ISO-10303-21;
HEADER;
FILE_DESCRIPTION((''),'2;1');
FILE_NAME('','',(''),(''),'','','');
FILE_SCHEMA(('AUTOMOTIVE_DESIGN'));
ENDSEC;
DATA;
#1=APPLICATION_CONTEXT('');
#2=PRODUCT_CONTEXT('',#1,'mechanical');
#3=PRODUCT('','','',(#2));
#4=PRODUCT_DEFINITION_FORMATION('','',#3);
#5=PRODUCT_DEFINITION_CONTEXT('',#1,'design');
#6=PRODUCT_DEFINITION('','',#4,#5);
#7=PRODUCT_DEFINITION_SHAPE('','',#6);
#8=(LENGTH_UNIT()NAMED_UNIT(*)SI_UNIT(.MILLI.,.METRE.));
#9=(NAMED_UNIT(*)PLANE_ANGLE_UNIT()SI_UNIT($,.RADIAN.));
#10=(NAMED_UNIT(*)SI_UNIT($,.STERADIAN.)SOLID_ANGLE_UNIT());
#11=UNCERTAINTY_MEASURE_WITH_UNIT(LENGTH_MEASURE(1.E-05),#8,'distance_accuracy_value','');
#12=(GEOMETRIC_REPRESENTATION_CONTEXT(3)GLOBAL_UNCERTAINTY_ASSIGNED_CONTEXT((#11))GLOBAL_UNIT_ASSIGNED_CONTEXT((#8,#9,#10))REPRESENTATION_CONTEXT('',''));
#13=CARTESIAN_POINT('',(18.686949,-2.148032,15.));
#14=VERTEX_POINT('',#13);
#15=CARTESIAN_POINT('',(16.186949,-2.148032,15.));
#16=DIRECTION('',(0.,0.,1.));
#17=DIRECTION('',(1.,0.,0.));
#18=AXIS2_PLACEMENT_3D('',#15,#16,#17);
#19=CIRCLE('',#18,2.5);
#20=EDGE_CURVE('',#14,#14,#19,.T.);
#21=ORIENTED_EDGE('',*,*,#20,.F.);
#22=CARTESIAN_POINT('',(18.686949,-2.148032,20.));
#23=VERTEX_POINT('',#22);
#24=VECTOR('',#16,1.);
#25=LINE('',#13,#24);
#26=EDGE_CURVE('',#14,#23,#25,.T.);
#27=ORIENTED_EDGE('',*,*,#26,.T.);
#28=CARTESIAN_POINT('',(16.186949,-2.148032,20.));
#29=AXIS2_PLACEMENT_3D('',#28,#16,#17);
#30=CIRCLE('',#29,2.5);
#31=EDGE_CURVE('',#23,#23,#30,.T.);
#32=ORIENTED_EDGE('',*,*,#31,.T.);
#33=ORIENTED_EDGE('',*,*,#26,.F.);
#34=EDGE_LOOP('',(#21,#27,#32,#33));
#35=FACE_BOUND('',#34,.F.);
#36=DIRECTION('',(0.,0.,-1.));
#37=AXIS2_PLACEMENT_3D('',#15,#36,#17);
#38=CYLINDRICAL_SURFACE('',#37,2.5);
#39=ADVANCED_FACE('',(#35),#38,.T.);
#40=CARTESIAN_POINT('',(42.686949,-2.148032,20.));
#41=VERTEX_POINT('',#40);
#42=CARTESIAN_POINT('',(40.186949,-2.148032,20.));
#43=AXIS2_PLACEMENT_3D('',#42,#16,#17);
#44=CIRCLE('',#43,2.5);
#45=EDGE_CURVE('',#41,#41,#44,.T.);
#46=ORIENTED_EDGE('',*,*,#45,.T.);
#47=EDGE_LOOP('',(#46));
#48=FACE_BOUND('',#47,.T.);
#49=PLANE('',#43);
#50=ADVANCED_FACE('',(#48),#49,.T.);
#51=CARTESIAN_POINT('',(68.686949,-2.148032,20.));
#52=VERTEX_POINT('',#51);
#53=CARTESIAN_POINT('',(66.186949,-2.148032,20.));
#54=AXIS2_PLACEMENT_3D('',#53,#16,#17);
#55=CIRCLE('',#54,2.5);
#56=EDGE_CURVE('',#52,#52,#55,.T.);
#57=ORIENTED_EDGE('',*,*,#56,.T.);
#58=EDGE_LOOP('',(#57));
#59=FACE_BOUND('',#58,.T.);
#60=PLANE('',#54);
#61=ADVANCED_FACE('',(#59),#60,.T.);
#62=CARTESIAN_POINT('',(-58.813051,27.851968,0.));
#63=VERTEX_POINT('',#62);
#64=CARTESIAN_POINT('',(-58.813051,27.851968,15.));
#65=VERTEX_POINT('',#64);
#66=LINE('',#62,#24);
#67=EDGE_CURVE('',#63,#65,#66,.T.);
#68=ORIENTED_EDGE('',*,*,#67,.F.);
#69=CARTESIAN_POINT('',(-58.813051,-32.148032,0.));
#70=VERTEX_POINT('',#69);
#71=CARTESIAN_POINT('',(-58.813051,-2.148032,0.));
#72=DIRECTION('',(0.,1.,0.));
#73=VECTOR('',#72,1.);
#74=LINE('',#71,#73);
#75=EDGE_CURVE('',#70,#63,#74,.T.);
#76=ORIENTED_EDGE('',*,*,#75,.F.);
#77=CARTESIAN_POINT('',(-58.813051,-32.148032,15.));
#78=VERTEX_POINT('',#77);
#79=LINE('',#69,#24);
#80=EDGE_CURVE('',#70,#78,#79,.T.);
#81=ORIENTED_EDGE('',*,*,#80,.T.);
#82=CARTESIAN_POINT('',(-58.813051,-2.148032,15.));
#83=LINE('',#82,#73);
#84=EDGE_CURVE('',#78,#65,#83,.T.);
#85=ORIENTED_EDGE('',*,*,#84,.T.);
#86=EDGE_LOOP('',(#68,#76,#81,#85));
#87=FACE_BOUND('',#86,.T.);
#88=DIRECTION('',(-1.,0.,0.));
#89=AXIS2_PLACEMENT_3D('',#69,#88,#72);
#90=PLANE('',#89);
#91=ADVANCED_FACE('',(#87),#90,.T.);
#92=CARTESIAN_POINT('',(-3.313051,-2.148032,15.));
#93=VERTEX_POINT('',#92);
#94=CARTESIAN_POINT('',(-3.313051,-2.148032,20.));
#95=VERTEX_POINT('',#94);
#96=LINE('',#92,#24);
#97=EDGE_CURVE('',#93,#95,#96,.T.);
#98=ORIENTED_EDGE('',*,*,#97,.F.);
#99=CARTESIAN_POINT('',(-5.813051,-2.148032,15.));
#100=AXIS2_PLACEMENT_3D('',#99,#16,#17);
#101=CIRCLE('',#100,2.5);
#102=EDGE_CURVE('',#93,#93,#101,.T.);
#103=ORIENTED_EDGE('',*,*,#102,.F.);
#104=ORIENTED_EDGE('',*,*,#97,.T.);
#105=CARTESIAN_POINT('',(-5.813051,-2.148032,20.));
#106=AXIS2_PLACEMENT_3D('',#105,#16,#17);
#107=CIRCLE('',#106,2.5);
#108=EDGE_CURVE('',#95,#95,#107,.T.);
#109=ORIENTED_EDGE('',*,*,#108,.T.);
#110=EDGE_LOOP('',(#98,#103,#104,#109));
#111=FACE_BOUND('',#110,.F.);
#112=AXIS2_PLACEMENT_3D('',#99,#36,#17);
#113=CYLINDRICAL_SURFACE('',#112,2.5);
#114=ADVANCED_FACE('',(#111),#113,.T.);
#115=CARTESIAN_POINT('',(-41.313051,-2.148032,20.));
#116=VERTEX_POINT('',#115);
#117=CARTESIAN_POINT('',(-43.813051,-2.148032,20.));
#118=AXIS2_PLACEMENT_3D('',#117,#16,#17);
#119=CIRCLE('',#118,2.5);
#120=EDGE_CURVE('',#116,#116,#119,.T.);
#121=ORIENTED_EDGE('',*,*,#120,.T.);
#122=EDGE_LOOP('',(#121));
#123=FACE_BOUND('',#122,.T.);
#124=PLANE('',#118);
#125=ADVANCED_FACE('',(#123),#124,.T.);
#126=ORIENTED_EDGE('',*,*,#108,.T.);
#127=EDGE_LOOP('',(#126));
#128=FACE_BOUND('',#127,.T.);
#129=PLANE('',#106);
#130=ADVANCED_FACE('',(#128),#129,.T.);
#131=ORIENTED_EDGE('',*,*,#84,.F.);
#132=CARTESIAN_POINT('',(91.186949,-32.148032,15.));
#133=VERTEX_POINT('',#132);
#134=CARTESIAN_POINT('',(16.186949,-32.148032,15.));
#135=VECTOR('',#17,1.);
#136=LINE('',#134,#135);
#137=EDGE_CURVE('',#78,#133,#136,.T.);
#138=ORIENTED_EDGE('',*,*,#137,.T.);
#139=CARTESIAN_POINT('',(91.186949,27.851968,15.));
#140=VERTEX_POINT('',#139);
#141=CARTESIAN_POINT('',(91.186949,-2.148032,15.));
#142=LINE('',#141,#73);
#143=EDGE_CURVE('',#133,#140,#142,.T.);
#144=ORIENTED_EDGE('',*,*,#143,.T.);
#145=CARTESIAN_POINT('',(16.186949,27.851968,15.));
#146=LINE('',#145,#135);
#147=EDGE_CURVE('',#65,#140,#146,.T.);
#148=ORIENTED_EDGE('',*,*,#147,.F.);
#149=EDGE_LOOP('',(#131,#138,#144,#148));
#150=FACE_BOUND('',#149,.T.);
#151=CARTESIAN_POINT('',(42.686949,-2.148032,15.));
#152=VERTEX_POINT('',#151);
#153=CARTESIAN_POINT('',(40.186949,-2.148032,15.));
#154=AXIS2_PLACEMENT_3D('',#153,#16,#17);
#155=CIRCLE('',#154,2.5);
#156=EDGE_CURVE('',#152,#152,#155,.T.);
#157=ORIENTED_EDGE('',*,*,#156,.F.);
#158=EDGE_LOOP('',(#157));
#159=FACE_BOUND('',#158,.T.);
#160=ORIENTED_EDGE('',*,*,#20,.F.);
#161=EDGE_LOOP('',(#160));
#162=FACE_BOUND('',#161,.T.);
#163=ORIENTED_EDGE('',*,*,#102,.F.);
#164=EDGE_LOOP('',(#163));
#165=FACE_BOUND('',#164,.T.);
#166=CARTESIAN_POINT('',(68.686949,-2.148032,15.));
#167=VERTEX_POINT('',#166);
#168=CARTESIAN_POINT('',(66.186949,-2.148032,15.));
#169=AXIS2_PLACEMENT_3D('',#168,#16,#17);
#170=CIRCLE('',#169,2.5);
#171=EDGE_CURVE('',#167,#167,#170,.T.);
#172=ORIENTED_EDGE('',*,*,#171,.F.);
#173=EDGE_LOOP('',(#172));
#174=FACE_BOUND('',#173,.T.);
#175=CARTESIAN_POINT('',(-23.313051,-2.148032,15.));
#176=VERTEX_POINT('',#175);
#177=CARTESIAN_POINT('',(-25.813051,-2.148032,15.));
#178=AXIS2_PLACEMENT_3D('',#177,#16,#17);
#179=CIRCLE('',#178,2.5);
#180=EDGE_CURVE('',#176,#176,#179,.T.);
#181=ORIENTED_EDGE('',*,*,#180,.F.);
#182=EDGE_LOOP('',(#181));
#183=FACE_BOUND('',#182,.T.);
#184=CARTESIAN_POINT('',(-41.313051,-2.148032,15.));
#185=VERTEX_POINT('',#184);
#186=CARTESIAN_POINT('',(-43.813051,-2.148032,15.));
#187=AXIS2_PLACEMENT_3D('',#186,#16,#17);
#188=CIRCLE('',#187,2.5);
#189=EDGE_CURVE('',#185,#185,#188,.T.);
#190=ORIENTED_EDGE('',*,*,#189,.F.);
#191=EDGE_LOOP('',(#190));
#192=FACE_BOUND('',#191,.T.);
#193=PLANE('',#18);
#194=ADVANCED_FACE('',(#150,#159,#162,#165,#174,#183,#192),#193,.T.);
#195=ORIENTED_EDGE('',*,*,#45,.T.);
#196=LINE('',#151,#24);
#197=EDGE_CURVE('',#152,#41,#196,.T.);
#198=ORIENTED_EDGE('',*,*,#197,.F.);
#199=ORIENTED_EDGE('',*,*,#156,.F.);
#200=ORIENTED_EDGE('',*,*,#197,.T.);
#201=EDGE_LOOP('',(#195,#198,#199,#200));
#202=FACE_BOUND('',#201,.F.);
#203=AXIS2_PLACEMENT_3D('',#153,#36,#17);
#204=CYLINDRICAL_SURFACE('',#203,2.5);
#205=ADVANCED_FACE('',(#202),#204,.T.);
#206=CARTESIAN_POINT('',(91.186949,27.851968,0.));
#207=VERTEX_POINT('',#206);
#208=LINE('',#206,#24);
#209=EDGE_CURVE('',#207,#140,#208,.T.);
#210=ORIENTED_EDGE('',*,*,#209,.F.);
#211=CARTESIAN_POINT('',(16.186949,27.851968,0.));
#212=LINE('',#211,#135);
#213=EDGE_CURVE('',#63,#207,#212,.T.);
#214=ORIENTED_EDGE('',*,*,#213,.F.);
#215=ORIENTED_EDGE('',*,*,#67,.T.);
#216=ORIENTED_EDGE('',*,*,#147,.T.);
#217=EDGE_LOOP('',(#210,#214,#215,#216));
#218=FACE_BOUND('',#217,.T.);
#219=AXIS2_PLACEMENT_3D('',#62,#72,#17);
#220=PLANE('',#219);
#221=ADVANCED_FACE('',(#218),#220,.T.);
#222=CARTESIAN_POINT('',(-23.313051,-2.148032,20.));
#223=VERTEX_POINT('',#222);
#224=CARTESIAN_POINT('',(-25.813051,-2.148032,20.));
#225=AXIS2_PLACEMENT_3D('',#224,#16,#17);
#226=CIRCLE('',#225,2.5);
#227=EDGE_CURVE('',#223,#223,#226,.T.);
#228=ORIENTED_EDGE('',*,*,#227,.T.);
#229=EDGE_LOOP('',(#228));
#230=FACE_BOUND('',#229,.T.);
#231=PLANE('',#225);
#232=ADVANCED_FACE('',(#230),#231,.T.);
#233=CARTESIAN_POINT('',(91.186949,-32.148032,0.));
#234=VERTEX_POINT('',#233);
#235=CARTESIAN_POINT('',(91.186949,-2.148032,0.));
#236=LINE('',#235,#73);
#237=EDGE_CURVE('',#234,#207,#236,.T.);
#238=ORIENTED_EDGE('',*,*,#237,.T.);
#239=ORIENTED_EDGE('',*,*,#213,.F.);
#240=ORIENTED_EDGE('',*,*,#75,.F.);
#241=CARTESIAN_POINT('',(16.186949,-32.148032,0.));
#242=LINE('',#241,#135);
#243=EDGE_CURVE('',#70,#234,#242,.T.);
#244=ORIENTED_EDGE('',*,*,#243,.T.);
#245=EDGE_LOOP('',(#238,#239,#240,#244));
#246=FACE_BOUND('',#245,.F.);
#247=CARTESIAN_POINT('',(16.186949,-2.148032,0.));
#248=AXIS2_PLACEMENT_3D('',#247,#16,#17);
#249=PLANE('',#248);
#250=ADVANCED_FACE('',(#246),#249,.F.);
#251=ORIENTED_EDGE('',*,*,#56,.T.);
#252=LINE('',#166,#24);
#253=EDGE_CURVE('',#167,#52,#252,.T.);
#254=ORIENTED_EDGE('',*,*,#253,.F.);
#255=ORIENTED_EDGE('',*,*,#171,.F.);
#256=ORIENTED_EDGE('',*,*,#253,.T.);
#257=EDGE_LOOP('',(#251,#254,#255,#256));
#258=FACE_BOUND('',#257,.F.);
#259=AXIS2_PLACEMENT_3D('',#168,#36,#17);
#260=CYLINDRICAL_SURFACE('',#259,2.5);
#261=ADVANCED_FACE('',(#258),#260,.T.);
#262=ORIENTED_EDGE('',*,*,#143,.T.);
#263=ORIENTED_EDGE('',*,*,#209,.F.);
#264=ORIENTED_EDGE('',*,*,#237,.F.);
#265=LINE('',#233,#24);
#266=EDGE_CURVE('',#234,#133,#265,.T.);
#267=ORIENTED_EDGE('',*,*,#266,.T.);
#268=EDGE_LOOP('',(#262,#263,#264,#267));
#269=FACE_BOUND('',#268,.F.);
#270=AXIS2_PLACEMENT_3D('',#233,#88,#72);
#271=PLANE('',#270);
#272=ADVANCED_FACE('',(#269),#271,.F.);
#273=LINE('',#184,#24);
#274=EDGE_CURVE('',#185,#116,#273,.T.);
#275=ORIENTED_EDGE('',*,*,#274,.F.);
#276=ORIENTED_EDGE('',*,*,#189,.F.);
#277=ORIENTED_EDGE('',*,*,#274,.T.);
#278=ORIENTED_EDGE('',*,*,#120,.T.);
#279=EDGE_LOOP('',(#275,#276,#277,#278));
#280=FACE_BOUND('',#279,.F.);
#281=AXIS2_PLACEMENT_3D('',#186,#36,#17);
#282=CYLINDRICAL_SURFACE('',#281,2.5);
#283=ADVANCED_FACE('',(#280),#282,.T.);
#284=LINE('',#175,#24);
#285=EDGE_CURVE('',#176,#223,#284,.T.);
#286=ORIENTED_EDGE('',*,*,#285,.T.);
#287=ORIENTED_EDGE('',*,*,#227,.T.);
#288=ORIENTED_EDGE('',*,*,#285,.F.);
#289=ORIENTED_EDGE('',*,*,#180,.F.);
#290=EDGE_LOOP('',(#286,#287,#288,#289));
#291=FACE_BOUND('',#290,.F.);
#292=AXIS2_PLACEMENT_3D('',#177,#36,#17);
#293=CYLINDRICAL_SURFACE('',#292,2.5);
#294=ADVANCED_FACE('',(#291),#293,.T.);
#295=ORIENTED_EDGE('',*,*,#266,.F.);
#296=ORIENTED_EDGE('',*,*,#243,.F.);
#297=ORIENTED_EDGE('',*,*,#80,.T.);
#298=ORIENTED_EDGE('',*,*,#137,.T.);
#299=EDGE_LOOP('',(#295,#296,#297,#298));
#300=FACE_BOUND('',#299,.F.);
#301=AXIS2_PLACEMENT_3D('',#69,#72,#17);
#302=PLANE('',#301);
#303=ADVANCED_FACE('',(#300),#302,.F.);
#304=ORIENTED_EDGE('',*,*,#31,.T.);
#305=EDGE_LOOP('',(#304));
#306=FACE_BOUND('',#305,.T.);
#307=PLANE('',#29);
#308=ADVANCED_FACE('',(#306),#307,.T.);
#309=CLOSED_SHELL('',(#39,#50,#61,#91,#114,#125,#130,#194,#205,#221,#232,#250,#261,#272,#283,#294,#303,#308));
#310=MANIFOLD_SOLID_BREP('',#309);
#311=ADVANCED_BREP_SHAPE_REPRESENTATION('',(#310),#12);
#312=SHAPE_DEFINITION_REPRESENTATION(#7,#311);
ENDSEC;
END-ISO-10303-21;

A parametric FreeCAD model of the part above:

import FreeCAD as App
import Part
import Sketcher


def add_polygon(sketch, points):
    """Adds a closed chain of lines whose ends are joined by coincident constraints."""
    first, n = sketch.GeometryCount, len(points)
    for a, b in zip(points, points[1:] + points[:1]):
        sketch.addGeometry(Part.LineSegment(App.Vector(*a, 0), App.Vector(*b, 0)), False)
    for i in range(n):
        sketch.addConstraint(Sketcher.Constraint("Coincident", first + i, 2, first + (i + 1) % n, 1))

doc = App.newDocument("Part")
body = doc.addObject("PartDesign::Body", "Body")

sketch1 = body.newObject("Sketcher::SketchObject", "Sketch")
sketch1.AttachmentSupport = (doc.getObject("XY_Plane"), [""])
sketch1.MapMode = "FlatFace"
add_polygon(sketch1, [(-59, 28), (-59, -32), (91, -32), (91, 28)])
sketch1.addConstraint([
    Sketcher.Constraint("Vertical", 0),
    Sketcher.Constraint("Horizontal", 1),
    Sketcher.Constraint("Vertical", 2),
    Sketcher.Constraint("Horizontal", 3),
    Sketcher.Constraint("DistanceX", 1, 1, 1, 2, 150.0),
    Sketcher.Constraint("DistanceY", 0, 2, 0, 1, 60.0),
    Sketcher.Constraint("DistanceX", 0, 2, -1, 1, 58.813051),
    Sketcher.Constraint("DistanceY", 0, 2, -1, 1, 32.148032),
])
pad1 = body.newObject("PartDesign::Pad", "Pad")
pad1.Profile = sketch1
pad1.Length = 15

sketch2 = body.newObject("Sketcher::SketchObject", "Sketch001")
sketch2.AttachmentSupport = (doc.getObject("XY_Plane"), [""])
sketch2.MapMode = "FlatFace"
sketch2.AttachmentOffset = App.Placement(App.Vector(0, 0, 15), App.Rotation())
sketch2.addGeometry([
    Part.Circle(App.Vector(-43.8, -2.1, 0), App.Vector(0, 0, 1), 2.5),
    Part.Circle(App.Vector(-25.8, -2.1, 0), App.Vector(0, 0, 1), 2.5),
    Part.Circle(App.Vector(-5.8, -2.1, 0), App.Vector(0, 0, 1), 2.5),
    Part.Circle(App.Vector(16.2, -2.1, 0), App.Vector(0, 0, 1), 2.5),
    Part.Circle(App.Vector(40.2, -2.1, 0), App.Vector(0, 0, 1), 2.5),
    Part.Circle(App.Vector(66.2, -2.1, 0), App.Vector(0, 0, 1), 2.5),
], False)
sketch2.addConstraint([
    Sketcher.Constraint("Equal", 0, 1),
    Sketcher.Constraint("Equal", 1, 2),
    Sketcher.Constraint("Equal", 2, 3),
    Sketcher.Constraint("Equal", 3, 4),
    Sketcher.Constraint("Equal", 4, 5),
    Sketcher.Constraint("Horizontal", 0, 3, 1, 3),
    Sketcher.Constraint("Horizontal", 1, 3, 2, 3),
    Sketcher.Constraint("Horizontal", 2, 3, 3, 3),
    Sketcher.Constraint("Horizontal", 3, 3, 4, 3),
    Sketcher.Constraint("Horizontal", 4, 3, 5, 3),
    Sketcher.Constraint("Diameter", 0, 5.0),
    Sketcher.Constraint("DistanceX", 0, 3, 1, 3, 18.0),
    Sketcher.Constraint("DistanceX", 1, 3, 2, 3, 20.0),
    Sketcher.Constraint("DistanceX", 2, 3, 3, 3, 22.0),
    Sketcher.Constraint("DistanceX", 3, 3, 4, 3, 24.0),
    Sketcher.Constraint("DistanceX", 4, 3, 5, 3, 26.0),
    Sketcher.Constraint("DistanceX", 0, 3, -1, 1, 43.813051),
    Sketcher.Constraint("DistanceY", 0, 3, -1, 1, 2.148032),
])
pad2 = body.newObject("PartDesign::Pad", "Pad001")
pad2.Profile = sketch2
pad2.Length = 5

doc.recompute()
